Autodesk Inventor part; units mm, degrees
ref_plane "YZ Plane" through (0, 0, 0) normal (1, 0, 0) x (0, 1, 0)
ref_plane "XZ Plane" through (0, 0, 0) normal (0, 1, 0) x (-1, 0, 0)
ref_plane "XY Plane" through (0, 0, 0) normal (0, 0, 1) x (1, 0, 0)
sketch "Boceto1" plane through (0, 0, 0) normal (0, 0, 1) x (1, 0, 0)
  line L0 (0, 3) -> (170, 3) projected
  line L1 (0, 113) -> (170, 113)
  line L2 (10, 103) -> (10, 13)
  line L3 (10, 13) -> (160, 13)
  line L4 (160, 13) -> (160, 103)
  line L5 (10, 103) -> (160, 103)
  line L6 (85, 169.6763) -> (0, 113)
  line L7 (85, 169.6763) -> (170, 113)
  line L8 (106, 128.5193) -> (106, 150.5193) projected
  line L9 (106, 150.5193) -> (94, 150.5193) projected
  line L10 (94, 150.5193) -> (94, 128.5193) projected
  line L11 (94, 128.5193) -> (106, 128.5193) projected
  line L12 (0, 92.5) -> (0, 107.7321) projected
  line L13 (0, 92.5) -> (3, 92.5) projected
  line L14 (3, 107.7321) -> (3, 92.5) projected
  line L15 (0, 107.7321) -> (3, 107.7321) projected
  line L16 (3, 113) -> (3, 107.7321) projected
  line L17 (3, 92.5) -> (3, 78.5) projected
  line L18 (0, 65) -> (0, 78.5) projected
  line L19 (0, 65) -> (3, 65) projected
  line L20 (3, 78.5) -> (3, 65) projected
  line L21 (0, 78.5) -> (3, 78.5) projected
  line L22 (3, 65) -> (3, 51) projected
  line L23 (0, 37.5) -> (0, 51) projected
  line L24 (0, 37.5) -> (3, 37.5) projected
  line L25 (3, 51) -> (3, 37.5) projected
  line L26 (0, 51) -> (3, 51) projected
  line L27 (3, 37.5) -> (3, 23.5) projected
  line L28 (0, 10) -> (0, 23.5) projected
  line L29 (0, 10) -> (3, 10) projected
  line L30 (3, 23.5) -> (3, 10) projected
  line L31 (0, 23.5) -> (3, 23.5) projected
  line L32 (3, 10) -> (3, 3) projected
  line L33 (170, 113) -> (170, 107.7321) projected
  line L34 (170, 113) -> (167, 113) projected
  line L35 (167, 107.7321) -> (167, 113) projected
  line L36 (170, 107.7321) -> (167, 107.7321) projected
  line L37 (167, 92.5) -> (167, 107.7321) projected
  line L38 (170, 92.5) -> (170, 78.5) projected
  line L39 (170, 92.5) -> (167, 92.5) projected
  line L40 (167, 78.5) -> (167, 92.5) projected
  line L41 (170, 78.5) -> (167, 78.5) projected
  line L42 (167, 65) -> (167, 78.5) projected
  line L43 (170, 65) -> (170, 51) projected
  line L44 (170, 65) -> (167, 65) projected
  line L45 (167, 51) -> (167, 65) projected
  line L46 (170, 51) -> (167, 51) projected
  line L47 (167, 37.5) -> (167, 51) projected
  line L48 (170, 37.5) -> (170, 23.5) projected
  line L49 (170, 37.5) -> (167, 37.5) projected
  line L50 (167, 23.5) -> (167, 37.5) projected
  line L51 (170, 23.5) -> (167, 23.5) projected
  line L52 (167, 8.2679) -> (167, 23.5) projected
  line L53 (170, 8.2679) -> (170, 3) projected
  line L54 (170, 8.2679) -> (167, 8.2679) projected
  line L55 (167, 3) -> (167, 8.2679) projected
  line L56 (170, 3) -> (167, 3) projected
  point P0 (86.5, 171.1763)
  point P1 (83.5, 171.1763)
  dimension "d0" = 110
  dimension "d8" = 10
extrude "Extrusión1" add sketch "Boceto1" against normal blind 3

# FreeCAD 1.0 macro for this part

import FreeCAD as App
import Part
import Sketcher
from FreeCAD import Vector
Q = App.Units.Quantity


def add_polygon(sketch, points):
    """Adds a closed chain of lines whose ends are joined by coincident constraints."""
    first, n = sketch.GeometryCount, len(points)
    for a, b in zip(points, points[1:] + points[:1]):
        sketch.addGeometry(Part.LineSegment(App.Vector(*a, 0), App.Vector(*b, 0)), False)
    for i in range(n):
        sketch.addConstraint(Sketcher.Constraint("Coincident", first + i, 2, first + (i + 1) % n, 1))

doc = App.newDocument("Part")
body = doc.addObject("PartDesign::Body", "Body")

# Sketch on XY plane
sketch1 = doc.addObject("Sketcher::SketchObject", "Sketch")
body.addObject(sketch1)
sketch1.AttachmentSupport = (doc.XY_Plane, [""])
sketch1.MapMode = "FlatFace"
add_polygon(sketch1, [(3, 10), (3, 3), (170, 3), (170, 8.3), (167, 8.3), (167, 23.5), (170, 23.5), (170, 37.5), (167, 37.5), (167, 51), (170, 51), (170, 65), (167, 65), (167, 78.5), (170, 78.5), (170, 92.5), (167, 92.5), (167, 107.7), (170, 107.7), (170, 113), (85, 169.7), (0, 113), (3, 113), (3, 107.7), (0, 107.7), (0, 92.5), (3, 92.5), (3, 78.5), (0, 78.5), (0, 65), (3, 65), (3, 51), (0, 51), (0, 37.5), (3, 37.5), (3, 23.5), (0, 23.5), (0, 10)])  # lines 0-37
add_polygon(sketch1, [(10, 13), (10, 103), (160, 103), (160, 13)])  # lines 38-41
add_polygon(sketch1, [(106, 128.5), (94, 128.5), (94, 150.5), (106, 150.5)])  # lines 42-45
sketch1.addConstraint([
    Sketcher.Constraint("Vertical", 0),
    Sketcher.Constraint("Horizontal", 1),
    Sketcher.Constraint("Vertical", 2),
    Sketcher.Constraint("Horizontal", 3),
    Sketcher.Constraint("Vertical", 4),
    Sketcher.Constraint("Horizontal", 5),
    Sketcher.Constraint("Vertical", 6),
    Sketcher.Constraint("Horizontal", 7),
    Sketcher.Constraint("Vertical", 8),
    Sketcher.Constraint("Horizontal", 9),
    Sketcher.Constraint("Vertical", 10),
    Sketcher.Constraint("Horizontal", 11),
    Sketcher.Constraint("Vertical", 12),
    Sketcher.Constraint("Horizontal", 13),
    Sketcher.Constraint("Vertical", 14),
    Sketcher.Constraint("Horizontal", 15),
    Sketcher.Constraint("Vertical", 16),
    Sketcher.Constraint("Horizontal", 17),
    Sketcher.Constraint("Vertical", 18),
    Sketcher.Constraint("Horizontal", 21),
    Sketcher.Constraint("Vertical", 22),
    Sketcher.Constraint("Horizontal", 23),
    Sketcher.Constraint("Vertical", 24),
    Sketcher.Constraint("Horizontal", 25),
    Sketcher.Constraint("Vertical", 26),
    Sketcher.Constraint("Horizontal", 27),
    Sketcher.Constraint("Vertical", 28),
    Sketcher.Constraint("Horizontal", 29),
    Sketcher.Constraint("Vertical", 30),
    Sketcher.Constraint("Horizontal", 31),
    Sketcher.Constraint("Vertical", 32),
    Sketcher.Constraint("Horizontal", 33),
    Sketcher.Constraint("Vertical", 34),
    Sketcher.Constraint("Horizontal", 35),
    Sketcher.Constraint("Vertical", 36),
    Sketcher.Constraint("Horizontal", 37),
    Sketcher.Constraint("Vertical", 38),
    Sketcher.Constraint("Horizontal", 39),
    Sketcher.Constraint("Vertical", 40),
    Sketcher.Constraint("Horizontal", 41),
    Sketcher.Constraint("Horizontal", 42),
    Sketcher.Constraint("Vertical", 43),
    Sketcher.Constraint("Horizontal", 44),
    Sketcher.Constraint("Vertical", 45),
    Sketcher.Constraint("PointOnObject", 20, 2, -2),
    Sketcher.Constraint("PointOnObject", 23, 2, -2),
    Sketcher.Constraint("PointOnObject", 27, 2, -2),
    Sketcher.Constraint("PointOnObject", 31, 2, -2),
    Sketcher.Constraint("PointOnObject", 35, 2, -2),
    Sketcher.Constraint("Horizontal", 18, 2, 20, 2),
    Sketcher.Constraint("Horizontal", 17, 2, 22, 2),
    Sketcher.Constraint("Horizontal", 15, 2, 24, 2),
    Sketcher.Constraint("Horizontal", 13, 2, 26, 2),
    Sketcher.Constraint("Horizontal", 11, 2, 28, 2),
    Sketcher.Constraint("Horizontal", 9, 2, 30, 2),
    Sketcher.Constraint("Horizontal", 7, 2, 32, 2),
    Sketcher.Constraint("Horizontal", 5, 2, 34, 2),
    Sketcher.Constraint("Vertical", 2, 2, 5, 2),
    Sketcher.Constraint("Vertical", 4, 2, 7, 2),
    Sketcher.Constraint("Vertical", 6, 2, 9, 2),
    Sketcher.Constraint("Vertical", 8, 2, 11, 2),
    Sketcher.Constraint("Vertical", 10, 2, 13, 2),
    Sketcher.Constraint("Vertical", 12, 2, 15, 2),
    Sketcher.Constraint("Vertical", 14, 2, 17, 2),
    Sketcher.Constraint("Vertical", 0, 2, 21, 2),
    Sketcher.Constraint("Vertical", 22, 2, 25, 2),
    Sketcher.Constraint("Vertical", 26, 2, 29, 2),
    Sketcher.Constraint("Vertical", 30, 2, 33, 2),
    Sketcher.Constraint("Equal", 17, 21),
    Sketcher.Constraint("Equal", 6, 10),
    Sketcher.Constraint("Equal", 8, 12),
    Sketcher.Constraint("Equal", 10, 14),
    Sketcher.Constraint("Equal", 4, 16),
    Sketcher.Constraint("Equal", 2, 18),
    Sketcher.Constraint("Equal", 32, 36),
    Sketcher.Constraint("Equal", 19, 20),
    Sketcher.Constraint("DistanceY", -1, 1, 36, 2, Q("10 mm")),
    Sketcher.Constraint("DistanceX", -1, 1, 38, 2, Q("10 mm")),
    Sketcher.Constraint("DistanceY", 0, 2, 20, 2, Q("110 mm")),
    Sketcher.Constraint("DistanceY", 38, 2, 21, 2, Q("10 mm")),
    Sketcher.Constraint("DistanceX", 39, 2, 17, 2, Q("10 mm")),
    Sketcher.Constraint("DistanceY", 1, 2, 40, 2, Q("10 mm")),
    Sketcher.Constraint("DistanceX", 1, 1, 1, 2, Q("167 mm")),
    Sketcher.Constraint("DistanceX", 3, 2, 3, 1, Q("3 mm")),
    Sketcher.Constraint("DistanceX", 42, 2, 42, 1, Q("12 mm")),
    Sketcher.Constraint("DistanceY", 0, 2, 0, 1, Q("7 mm")),
    Sketcher.Constraint("DistanceY", 6, 1, 6, 2, Q("14 mm")),
    Sketcher.Constraint("DistanceY", 43, 1, 43, 2, Q("22 mm")),
    Sketcher.Constraint("DistanceX", -1, 1, 42, 2, Q("94 mm")),
    Sketcher.Constraint("DistanceY", 2, 1, 2, 2, Q("5.268 mm")),
    Sketcher.Constraint("DistanceY", 42, 2, 19, 2, Q("41.157 mm")),
    Sketcher.Constraint("Distance", 19, Q("102.1626 mm")),
])
pad1 = doc.addObject("PartDesign::Pad", "Pad")
body.addObject(pad1)
pad1.Profile = sketch1
pad1.Length = 3
pad1.Reversed = True

doc.recompute()
